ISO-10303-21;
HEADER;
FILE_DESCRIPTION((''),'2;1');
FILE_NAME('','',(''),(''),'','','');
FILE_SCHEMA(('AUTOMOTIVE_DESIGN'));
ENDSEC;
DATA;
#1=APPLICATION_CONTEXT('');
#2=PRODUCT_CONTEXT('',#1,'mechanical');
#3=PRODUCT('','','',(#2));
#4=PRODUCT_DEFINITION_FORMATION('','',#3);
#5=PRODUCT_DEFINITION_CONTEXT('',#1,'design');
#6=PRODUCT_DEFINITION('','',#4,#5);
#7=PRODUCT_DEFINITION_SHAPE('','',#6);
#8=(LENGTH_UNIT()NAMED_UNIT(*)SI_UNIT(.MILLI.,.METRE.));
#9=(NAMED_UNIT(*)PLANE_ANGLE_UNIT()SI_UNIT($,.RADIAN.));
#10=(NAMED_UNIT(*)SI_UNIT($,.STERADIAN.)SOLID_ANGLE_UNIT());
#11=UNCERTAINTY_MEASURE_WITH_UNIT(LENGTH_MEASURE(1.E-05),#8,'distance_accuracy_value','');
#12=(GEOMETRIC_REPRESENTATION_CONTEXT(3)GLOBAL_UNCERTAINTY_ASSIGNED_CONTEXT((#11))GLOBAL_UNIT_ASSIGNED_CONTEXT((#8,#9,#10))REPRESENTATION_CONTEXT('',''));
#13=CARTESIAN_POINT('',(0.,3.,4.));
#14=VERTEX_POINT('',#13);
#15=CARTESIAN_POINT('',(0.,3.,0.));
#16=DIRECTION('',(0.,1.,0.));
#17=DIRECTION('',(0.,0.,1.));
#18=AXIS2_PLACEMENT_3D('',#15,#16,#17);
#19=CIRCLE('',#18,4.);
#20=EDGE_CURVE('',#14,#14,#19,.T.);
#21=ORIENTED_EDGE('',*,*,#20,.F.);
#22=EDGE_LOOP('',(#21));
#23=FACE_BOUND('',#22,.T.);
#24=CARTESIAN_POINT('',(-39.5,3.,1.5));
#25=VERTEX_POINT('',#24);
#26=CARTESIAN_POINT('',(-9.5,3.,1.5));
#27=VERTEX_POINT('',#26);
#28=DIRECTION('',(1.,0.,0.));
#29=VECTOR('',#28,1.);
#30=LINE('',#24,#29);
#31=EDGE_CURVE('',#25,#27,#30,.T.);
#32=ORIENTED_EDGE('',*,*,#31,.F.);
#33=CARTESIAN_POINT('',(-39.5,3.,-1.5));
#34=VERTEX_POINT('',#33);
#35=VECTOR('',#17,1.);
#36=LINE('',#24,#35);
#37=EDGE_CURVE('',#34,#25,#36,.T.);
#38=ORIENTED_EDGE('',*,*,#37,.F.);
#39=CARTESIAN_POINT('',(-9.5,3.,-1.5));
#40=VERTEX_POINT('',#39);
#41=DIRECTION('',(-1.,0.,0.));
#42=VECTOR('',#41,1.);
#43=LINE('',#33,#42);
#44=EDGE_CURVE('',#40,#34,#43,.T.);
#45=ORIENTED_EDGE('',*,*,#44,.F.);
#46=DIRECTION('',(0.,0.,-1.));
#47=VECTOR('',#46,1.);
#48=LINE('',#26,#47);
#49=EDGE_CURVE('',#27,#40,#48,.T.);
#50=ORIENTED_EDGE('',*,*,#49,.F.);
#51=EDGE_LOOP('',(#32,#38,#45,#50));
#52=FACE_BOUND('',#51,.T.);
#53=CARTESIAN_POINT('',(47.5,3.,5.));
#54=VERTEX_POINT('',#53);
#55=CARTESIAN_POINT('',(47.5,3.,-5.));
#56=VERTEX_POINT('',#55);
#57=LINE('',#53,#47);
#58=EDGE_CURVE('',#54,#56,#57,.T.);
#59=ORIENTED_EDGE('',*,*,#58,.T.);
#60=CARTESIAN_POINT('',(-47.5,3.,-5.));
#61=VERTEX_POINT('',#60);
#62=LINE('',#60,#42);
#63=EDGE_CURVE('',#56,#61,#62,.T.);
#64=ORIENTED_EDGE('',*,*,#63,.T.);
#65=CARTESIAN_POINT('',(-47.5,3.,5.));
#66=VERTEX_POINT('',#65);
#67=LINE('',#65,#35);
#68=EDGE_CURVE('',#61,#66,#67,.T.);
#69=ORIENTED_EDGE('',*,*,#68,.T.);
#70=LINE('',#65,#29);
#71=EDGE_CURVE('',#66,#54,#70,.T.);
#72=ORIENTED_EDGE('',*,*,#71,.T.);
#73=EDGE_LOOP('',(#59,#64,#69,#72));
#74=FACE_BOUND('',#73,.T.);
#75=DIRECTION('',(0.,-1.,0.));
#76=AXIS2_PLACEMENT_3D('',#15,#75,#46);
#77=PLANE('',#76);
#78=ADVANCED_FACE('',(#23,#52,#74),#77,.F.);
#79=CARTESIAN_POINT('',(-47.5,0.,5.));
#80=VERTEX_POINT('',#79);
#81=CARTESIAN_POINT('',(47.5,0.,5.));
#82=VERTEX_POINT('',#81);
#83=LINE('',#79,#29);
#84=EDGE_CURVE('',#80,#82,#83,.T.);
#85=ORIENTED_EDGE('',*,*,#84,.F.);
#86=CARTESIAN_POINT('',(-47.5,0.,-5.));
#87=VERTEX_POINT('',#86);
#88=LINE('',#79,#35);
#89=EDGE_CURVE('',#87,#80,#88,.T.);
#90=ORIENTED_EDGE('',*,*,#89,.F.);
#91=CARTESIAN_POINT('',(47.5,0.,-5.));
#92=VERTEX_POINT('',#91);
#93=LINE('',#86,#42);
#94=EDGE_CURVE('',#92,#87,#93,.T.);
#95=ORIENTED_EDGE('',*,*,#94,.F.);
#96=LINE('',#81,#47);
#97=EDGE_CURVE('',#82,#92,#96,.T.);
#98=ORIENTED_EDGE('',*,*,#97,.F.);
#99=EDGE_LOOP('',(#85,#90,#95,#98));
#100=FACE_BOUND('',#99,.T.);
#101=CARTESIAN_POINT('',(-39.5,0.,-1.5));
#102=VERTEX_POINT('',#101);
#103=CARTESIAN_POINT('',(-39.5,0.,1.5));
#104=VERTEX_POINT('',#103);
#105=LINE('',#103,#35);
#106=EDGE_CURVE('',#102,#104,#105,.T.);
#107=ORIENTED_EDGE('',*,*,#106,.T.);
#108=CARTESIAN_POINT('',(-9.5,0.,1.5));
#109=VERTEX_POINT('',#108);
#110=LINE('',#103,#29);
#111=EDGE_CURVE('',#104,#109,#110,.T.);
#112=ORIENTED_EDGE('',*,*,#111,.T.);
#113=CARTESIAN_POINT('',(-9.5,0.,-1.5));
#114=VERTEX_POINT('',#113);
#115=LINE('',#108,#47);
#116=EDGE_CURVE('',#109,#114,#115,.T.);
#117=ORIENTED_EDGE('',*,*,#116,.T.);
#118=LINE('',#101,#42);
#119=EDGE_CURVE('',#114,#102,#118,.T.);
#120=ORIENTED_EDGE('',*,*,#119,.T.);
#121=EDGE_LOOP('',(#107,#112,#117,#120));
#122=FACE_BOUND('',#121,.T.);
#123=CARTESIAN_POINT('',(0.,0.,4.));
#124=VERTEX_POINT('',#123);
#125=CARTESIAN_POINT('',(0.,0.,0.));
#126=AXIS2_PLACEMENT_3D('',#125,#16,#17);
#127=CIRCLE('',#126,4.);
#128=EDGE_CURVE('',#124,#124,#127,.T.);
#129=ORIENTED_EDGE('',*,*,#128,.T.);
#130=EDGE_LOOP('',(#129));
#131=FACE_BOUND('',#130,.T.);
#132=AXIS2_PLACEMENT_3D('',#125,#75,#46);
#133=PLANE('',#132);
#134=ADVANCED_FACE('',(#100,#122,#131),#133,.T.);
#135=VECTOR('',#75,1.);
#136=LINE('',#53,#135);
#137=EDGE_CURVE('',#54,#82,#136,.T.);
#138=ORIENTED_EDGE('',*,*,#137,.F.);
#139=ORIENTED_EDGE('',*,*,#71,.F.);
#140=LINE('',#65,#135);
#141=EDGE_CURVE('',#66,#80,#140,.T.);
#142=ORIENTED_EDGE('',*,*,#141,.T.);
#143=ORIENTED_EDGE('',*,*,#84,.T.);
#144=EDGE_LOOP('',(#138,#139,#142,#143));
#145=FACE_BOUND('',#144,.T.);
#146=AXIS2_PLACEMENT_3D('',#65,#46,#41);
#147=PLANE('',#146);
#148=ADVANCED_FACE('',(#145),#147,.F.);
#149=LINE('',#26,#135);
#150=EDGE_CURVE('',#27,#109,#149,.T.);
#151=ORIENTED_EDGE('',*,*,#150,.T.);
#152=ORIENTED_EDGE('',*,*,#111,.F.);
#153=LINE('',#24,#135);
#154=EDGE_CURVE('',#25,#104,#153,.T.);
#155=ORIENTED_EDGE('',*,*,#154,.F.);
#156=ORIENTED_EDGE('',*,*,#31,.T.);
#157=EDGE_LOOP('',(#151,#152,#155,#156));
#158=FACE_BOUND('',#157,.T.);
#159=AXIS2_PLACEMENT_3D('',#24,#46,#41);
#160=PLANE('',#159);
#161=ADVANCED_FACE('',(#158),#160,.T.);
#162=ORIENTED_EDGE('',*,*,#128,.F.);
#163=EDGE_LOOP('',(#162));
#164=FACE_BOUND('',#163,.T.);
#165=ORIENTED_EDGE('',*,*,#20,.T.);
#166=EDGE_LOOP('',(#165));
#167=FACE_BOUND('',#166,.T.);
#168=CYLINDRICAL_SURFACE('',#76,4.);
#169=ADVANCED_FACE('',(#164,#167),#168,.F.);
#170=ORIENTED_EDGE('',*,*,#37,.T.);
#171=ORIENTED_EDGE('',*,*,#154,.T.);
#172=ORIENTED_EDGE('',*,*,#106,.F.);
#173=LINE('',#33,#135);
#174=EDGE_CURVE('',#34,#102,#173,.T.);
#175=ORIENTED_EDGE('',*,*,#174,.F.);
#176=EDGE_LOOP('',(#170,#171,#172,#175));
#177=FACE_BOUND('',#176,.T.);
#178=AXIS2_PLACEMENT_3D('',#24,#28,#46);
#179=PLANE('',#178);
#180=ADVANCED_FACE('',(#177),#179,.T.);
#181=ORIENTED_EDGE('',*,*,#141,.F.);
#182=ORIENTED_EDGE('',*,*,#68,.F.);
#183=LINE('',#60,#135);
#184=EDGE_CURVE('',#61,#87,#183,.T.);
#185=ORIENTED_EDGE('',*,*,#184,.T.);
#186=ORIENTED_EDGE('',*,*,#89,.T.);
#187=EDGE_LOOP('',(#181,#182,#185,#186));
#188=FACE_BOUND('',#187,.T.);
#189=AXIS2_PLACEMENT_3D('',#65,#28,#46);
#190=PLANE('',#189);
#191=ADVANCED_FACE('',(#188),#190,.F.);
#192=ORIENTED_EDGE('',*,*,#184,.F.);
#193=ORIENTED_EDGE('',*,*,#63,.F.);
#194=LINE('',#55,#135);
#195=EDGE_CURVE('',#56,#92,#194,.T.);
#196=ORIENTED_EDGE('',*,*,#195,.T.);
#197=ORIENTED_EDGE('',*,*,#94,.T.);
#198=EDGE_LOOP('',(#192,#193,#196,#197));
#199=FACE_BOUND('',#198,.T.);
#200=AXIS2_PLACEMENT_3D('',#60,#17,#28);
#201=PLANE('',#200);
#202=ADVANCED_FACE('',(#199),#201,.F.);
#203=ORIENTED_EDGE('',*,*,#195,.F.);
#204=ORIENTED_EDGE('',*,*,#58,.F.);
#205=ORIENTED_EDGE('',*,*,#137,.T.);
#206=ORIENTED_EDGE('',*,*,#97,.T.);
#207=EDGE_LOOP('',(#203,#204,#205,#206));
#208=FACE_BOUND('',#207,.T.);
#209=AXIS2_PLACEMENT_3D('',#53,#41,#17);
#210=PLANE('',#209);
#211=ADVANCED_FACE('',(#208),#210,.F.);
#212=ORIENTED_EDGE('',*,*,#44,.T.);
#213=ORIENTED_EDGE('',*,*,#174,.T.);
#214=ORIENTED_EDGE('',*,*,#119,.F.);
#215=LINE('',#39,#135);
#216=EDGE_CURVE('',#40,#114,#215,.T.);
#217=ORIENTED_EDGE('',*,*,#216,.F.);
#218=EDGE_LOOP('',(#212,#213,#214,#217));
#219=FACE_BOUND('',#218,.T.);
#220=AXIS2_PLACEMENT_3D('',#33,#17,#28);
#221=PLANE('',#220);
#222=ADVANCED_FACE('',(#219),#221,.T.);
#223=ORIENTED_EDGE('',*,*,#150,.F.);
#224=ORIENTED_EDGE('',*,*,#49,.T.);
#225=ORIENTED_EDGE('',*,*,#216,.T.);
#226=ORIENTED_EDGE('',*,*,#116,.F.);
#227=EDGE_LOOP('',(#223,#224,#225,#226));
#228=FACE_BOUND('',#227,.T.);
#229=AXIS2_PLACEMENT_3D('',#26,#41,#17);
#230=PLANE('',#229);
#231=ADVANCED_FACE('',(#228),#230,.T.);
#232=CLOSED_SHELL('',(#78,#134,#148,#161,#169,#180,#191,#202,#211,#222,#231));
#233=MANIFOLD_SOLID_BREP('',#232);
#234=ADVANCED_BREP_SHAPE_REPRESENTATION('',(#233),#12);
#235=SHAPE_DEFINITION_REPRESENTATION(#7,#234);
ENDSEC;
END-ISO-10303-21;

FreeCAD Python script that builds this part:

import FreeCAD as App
import Part
import Sketcher

doc = App.newDocument("Part")
body = doc.addObject("PartDesign::Body", "Body")

# Sketch on XZ plane
sketch1 = body.newObject("Sketcher::SketchObject", "Sketch")
sketch1.AttachmentSupport = (doc.getObject("XZ_Plane"), [""])
sketch1.MapMode = "FlatFace"
sketch1.addGeometry(Part.LineSegment(App.Vector(-47.5, -5, 0), App.Vector(-47.5, 5, 0)), False)
sketch1.addGeometry(Part.LineSegment(App.Vector(-47.5, 5, 0), App.Vector(47.5, 5, 0)), False)
sketch1.addGeometry(Part.LineSegment(App.Vector(47.5, 5, 0), App.Vector(47.5, -5, 0)), False)
sketch1.addGeometry(Part.LineSegment(App.Vector(47.5, -5, 0), App.Vector(-47.5, -5, 0)), False)
sketch1.addGeometry(Part.LineSegment(App.Vector(-9.5, 1.5, 0), App.Vector(-39.5, 1.5, 0)), False)
sketch1.addGeometry(Part.LineSegment(App.Vector(-39.5, 1.5, 0), App.Vector(-39.5, -1.5, 0)), False)
sketch1.addGeometry(Part.LineSegment(App.Vector(-39.5, -1.5, 0), App.Vector(-9.5, -1.5, 0)), False)
sketch1.addGeometry(Part.LineSegment(App.Vector(-9.5, -1.5, 0), App.Vector(-9.5, 1.5, 0)), False)
sketch1.addGeometry(Part.Circle(App.Vector(0, 0, 0), App.Vector(0, 0, 1), 4), False)
sketch1.addConstraint(Sketcher.Constraint("Coincident", 0, 2, 1, 1))
sketch1.addConstraint(Sketcher.Constraint("Coincident", 1, 2, 2, 1))
sketch1.addConstraint(Sketcher.Constraint("Coincident", 2, 2, 3, 1))
sketch1.addConstraint(Sketcher.Constraint("Coincident", 3, 2, 0, 1))
sketch1.addConstraint(Sketcher.Constraint("Coincident", 4, 2, 5, 1))
sketch1.addConstraint(Sketcher.Constraint("Coincident", 5, 2, 6, 1))
sketch1.addConstraint(Sketcher.Constraint("Coincident", 6, 2, 7, 1))
sketch1.addConstraint(Sketcher.Constraint("Coincident", 7, 2, 4, 1))
sketch1.addConstraint(Sketcher.Constraint("Vertical", 0))
sketch1.addConstraint(Sketcher.Constraint("Horizontal", 1))
sketch1.addConstraint(Sketcher.Constraint("Vertical", 2))
sketch1.addConstraint(Sketcher.Constraint("Horizontal", 3))
sketch1.addConstraint(Sketcher.Constraint("Horizontal", 4))
sketch1.addConstraint(Sketcher.Constraint("Vertical", 5))
sketch1.addConstraint(Sketcher.Constraint("Horizontal", 6))
sketch1.addConstraint(Sketcher.Constraint("Vertical", 7))
sketch1.addConstraint(Sketcher.Constraint("Coincident", 8, 3, -1, 1))
sketch1.addConstraint(Sketcher.Constraint("Symmetric", 0, 2, 2, 2, -1, 1))
sketch1.addConstraint(Sketcher.Constraint("Diameter", 8, 8.0))
sketch1.addConstraint(Sketcher.Constraint("DistanceX", 1, 1, 1, 2, 95.0))
sketch1.addConstraint(Sketcher.Constraint("DistanceX", 4, 2, 4, 1, 30.0))
sketch1.addConstraint(Sketcher.Constraint("DistanceY", 0, 1, 0, 2, 10.0))
sketch1.addConstraint(Sketcher.Constraint("DistanceY", 5, 2, 5, 1, 3.0))
sketch1.addConstraint(Sketcher.Constraint("DistanceX", 0, 2, 4, 2, 8.0))
sketch1.addConstraint(Sketcher.Constraint("DistanceY", -1, 1, 4, 2, 1.5))
pad1 = body.newObject("PartDesign::Pad", "Pad")
pad1.Profile = sketch1
pad1.Length = 3
pad1.Reversed = True

doc.recompute()
